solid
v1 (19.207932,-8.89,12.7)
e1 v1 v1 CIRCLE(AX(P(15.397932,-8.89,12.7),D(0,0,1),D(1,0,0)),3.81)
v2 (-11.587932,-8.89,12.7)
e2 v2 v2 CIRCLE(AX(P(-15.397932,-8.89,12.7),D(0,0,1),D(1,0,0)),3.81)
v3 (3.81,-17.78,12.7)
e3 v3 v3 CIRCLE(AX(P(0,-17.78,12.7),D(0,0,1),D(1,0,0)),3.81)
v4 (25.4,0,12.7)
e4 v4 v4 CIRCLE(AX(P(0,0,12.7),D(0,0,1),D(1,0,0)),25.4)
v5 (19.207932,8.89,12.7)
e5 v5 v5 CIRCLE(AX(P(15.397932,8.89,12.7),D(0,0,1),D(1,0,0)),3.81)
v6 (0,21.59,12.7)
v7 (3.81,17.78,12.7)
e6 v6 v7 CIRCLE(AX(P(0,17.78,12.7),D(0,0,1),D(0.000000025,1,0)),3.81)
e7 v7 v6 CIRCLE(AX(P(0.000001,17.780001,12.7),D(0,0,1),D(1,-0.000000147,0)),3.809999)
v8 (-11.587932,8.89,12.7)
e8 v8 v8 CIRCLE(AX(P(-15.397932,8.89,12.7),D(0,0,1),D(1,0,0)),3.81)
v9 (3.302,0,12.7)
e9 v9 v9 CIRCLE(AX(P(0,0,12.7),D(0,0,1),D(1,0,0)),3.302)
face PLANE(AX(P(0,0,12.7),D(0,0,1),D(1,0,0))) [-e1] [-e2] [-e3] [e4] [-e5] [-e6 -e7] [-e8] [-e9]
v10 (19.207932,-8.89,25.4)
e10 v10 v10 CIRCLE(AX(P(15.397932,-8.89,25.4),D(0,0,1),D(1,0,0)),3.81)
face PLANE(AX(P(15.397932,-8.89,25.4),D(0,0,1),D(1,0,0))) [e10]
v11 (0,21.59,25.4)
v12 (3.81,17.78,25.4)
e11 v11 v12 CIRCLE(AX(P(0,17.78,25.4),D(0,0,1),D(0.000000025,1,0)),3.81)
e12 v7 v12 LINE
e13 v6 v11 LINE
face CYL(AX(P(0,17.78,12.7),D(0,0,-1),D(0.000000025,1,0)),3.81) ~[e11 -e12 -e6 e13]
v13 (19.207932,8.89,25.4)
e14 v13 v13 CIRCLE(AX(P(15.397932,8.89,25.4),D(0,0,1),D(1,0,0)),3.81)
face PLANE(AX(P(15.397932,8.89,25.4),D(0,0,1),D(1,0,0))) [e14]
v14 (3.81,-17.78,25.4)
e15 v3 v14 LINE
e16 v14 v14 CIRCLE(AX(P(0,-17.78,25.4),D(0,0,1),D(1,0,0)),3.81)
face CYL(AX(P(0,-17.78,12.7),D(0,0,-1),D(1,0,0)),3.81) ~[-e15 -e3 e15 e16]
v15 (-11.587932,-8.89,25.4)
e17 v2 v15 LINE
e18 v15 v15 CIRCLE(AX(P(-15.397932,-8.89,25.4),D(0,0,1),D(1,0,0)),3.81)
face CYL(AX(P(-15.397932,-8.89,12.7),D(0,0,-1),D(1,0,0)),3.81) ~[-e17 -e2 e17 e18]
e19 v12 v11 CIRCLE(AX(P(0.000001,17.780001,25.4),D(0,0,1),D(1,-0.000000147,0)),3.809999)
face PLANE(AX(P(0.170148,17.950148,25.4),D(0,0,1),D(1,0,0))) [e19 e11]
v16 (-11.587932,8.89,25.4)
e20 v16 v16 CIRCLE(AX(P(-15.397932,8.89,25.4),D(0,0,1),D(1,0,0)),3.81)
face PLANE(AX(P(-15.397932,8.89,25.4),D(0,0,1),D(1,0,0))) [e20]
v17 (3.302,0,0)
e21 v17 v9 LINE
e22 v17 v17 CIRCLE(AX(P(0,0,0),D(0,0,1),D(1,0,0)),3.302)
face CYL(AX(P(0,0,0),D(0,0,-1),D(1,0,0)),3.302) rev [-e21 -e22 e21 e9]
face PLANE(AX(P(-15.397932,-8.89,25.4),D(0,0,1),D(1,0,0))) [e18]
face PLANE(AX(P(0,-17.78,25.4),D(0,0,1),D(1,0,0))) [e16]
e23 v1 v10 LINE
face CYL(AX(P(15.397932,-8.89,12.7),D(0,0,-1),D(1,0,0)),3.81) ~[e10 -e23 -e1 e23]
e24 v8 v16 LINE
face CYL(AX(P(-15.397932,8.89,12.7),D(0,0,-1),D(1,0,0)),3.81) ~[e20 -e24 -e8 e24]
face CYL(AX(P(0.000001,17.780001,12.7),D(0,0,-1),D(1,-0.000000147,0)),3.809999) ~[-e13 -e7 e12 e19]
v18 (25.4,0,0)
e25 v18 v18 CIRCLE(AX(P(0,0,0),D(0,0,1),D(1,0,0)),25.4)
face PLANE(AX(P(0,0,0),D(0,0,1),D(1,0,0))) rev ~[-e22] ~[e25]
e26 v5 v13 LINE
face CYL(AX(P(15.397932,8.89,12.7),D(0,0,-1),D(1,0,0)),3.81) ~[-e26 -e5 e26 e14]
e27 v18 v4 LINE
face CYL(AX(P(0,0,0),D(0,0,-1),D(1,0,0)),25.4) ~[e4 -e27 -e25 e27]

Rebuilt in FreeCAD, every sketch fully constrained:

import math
import FreeCAD as App
import Part
import Sketcher

V = App.Vector
Q = App.Units.Quantity

doc = App.newDocument("Part")
body = doc.addObject("PartDesign::Body", "Body")

# Sketch on XY plane
sketch1 = body.newObject("Sketcher::SketchObject", "Sketch")
sketch1.AttachmentSupport = (doc.getObject("XY_Plane"), [""])
sketch1.MapMode = "FlatFace"
sketch1.addGeometry(Part.Circle(V(0, 0, 0), V(0, 0, 1), 25.4), False)
sketch1.addGeometry(Part.Circle(V(0, 0, 0), V(0, 0, 1), 3.3), False)
sketch1.addConstraint(Sketcher.Constraint("Coincident", 0, 3, -1, 1))
sketch1.addConstraint(Sketcher.Constraint("Coincident", 1, 3, -1, 1))
sketch1.addConstraint(Sketcher.Constraint("Diameter", 0, Q("2 in")))
sketch1.addConstraint(Sketcher.Constraint("Diameter", 1, Q("0.26 in")))
pad1 = body.newObject("PartDesign::Pad", "Pad")
pad1.Profile = sketch1
pad1.Length = Q("0.5 in")

# Sketch on XY plane
sketch2 = body.newObject("Sketcher::SketchObject", "Sketch001")
sketch2.AttachmentSupport = (doc.getObject("XY_Plane"), [""])
sketch2.MapMode = "FlatFace"
sketch2.AttachmentOffset = App.Placement(V(0, 0, 0.5 * 25.4), App.Rotation())
sketch2.addGeometry(Part.ArcOfCircle(Part.Circle(V(0, 17.8, 0), V(0, 0, 1), 3.8), math.radians(90), math.radians(360)), False)
sketch2.addGeometry(Part.ArcOfCircle(Part.Circle(V(0, 17.8, 0), V(0, 0, 1), 3.8), math.radians(0), math.radians(90)), False)
sketch2.addGeometry(Part.Circle(V(-15.4, 8.9, 0), V(0, 0, 1), 3.8), False)
sketch2.addGeometry(Part.Circle(V(-15.4, -8.9, 0), V(0, 0, 1), 3.8), False)
sketch2.addGeometry(Part.Circle(V(0, -17.8, 0), V(0, 0, 1), 3.8), False)
sketch2.addGeometry(Part.Circle(V(15.4, -8.9, 0), V(0, 0, 1), 3.8), False)
sketch2.addGeometry(Part.Circle(V(15.4, 8.9, 0), V(0, 0, 1), 3.8), False)
sketch2.addConstraint(Sketcher.Constraint("Tangent", 0, 1, 1, 2))
sketch2.addConstraint(Sketcher.Constraint("Coincident", 1, 1, 0, 2))
sketch2.addConstraint(Sketcher.Constraint("Equal", 1, 2))
sketch2.addConstraint(Sketcher.Constraint("Equal", 2, 3))
sketch2.addConstraint(Sketcher.Constraint("Equal", 3, 4))
sketch2.addConstraint(Sketcher.Constraint("Equal", 4, 5))
sketch2.addConstraint(Sketcher.Constraint("Equal", 5, 6))
sketch2.addConstraint(Sketcher.Constraint("Symmetric", 0, 3, 4, 3, -1, 1))
sketch2.addConstraint(Sketcher.Constraint("Symmetric", 2, 3, 5, 3, -1, 1))
sketch2.addConstraint(Sketcher.Constraint("Symmetric", 3, 3, 6, 3, -1, 1))
sketch2.addConstraint(Sketcher.Constraint("Symmetric", 3, 3, 5, 3, -2))
sketch2.addConstraint(Sketcher.Constraint("PointOnObject", 0, 3, -2))
sketch2.addConstraint(Sketcher.Constraint("PointOnObject", 0, 1, -2))
sketch2.addConstraint(Sketcher.Constraint("Horizontal", 0, 3, 1, 1))
sketch2.addConstraint(Sketcher.Constraint("Diameter", 2, Q("0.3 in")))
sketch2.addConstraint(Sketcher.Constraint("DistanceY", -1, 1, 0, 3, Q("0.7 in")))
sketch2.addConstraint(Sketcher.Constraint("DistanceY", 3, 3, 2, 3, Q("0.7 in")))
sketch2.addConstraint(Sketcher.Constraint("DistanceX", 2, 3, 0, 3, Q("15.397932 mm")))
pad2 = body.newObject("PartDesign::Pad", "Pad001")
pad2.Profile = sketch2
pad2.Length = Q("0.5 in")

doc.recompute()
